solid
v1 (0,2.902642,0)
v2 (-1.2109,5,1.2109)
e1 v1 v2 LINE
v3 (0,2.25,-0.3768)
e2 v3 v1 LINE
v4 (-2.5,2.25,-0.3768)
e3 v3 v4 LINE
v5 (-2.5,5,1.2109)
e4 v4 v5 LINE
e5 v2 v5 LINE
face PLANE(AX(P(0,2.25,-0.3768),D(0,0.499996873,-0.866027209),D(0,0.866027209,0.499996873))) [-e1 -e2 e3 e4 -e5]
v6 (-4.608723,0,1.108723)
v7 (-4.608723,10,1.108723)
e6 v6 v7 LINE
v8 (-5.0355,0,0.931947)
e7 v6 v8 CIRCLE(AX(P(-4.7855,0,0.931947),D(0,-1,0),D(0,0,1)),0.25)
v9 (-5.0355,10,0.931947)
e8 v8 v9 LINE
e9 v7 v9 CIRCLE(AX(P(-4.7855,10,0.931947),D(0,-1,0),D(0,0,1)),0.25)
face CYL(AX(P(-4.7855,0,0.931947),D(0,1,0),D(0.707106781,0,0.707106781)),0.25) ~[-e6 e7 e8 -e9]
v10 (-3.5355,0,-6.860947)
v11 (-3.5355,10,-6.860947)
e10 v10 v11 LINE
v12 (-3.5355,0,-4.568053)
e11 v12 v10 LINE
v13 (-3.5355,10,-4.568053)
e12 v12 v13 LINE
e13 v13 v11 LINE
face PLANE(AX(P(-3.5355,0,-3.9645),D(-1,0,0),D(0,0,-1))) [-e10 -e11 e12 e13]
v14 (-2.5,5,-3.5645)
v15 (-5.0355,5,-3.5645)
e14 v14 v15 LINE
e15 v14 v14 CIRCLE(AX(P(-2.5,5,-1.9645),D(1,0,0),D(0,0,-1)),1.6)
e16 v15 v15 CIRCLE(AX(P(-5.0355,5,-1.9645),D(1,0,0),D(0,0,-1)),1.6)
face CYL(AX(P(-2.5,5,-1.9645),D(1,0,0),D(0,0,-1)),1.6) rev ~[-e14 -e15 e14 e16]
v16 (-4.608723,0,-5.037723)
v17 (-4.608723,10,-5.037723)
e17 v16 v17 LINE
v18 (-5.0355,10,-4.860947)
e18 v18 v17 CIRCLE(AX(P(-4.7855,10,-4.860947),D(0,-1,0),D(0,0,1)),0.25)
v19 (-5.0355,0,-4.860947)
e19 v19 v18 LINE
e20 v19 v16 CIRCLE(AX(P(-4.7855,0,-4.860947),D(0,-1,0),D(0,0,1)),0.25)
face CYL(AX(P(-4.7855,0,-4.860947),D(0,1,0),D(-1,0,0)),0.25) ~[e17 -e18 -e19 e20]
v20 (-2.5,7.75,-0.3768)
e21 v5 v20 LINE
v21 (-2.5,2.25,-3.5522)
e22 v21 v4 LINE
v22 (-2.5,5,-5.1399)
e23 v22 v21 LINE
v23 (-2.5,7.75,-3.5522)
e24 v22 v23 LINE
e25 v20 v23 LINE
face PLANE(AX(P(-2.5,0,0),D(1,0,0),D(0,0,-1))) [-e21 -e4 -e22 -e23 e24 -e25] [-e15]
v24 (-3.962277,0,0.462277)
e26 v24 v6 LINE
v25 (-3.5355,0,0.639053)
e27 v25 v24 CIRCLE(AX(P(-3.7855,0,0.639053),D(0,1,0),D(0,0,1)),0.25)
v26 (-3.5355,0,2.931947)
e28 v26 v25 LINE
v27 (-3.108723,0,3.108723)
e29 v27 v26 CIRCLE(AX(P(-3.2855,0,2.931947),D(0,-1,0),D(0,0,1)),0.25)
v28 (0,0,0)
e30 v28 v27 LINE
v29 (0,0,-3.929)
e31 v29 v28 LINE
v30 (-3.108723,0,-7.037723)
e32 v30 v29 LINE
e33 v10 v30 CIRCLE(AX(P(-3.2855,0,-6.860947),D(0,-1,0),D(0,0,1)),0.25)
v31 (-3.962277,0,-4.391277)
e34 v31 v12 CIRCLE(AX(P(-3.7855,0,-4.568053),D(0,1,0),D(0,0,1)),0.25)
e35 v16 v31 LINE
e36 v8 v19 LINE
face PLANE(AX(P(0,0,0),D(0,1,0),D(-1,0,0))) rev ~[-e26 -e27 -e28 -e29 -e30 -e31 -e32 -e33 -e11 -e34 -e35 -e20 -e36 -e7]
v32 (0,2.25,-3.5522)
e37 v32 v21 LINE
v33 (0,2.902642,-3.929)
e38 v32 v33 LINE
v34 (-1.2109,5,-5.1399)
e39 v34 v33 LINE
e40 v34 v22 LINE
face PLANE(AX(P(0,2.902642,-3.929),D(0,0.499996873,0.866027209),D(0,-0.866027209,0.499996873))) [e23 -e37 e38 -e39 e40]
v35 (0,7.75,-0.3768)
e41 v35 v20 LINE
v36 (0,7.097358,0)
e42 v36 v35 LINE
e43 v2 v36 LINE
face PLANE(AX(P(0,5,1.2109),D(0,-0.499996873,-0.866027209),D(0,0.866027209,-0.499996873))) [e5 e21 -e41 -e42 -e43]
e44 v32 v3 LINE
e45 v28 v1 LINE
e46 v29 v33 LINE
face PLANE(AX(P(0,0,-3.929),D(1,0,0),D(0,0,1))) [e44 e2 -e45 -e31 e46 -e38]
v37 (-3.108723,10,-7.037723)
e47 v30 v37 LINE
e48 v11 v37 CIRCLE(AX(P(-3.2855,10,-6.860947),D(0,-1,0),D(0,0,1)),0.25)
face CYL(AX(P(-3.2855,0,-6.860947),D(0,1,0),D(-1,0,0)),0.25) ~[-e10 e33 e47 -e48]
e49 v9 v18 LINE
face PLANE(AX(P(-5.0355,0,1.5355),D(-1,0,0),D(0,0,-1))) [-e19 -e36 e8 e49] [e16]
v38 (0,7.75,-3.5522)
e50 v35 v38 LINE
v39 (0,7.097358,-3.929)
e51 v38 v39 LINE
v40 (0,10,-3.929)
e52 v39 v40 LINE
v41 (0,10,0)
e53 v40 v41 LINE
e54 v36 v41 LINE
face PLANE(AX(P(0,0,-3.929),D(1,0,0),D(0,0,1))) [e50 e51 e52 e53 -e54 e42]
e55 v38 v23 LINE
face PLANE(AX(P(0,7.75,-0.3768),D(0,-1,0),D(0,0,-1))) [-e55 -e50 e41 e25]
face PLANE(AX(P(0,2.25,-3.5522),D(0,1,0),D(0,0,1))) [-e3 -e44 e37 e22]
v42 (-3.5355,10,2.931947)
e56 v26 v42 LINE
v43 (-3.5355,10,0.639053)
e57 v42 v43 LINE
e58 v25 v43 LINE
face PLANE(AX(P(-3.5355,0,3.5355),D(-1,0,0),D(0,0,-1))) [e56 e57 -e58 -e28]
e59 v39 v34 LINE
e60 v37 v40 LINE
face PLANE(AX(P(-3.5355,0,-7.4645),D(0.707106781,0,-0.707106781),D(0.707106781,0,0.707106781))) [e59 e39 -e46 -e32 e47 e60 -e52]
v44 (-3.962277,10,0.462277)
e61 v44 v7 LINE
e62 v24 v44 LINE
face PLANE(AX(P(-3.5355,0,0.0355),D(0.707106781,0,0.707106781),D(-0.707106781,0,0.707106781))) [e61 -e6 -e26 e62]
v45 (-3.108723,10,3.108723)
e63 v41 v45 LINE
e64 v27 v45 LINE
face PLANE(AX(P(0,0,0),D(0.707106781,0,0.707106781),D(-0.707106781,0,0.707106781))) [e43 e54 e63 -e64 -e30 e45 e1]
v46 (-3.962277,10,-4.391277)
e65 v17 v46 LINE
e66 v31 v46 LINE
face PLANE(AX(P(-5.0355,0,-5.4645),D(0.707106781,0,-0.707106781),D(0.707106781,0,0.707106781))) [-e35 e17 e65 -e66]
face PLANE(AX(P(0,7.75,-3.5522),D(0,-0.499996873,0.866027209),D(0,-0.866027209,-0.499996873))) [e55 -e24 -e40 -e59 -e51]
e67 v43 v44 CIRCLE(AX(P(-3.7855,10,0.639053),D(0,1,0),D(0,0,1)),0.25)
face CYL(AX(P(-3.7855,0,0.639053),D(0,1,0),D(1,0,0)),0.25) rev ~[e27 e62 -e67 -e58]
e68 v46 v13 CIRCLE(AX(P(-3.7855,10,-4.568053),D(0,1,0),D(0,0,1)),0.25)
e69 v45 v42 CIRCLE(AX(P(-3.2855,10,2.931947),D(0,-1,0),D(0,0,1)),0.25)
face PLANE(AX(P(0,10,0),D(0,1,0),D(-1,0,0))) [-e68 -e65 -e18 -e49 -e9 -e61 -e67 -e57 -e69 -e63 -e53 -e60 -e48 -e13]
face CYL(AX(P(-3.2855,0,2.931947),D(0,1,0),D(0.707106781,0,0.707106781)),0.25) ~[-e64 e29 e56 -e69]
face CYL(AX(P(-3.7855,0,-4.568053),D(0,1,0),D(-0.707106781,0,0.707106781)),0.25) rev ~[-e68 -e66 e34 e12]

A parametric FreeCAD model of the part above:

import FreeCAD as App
import Part
import Sketcher

V = App.Vector
Q = App.Units.Quantity


def edges_at(feature, points):
    """Names of the edges that pass closest to the given points."""
    edges = feature.Shape.Edges
    near = lambda p: min(range(len(edges)), key=lambda i: edges[i].distToShape(Part.Vertex(*p))[0])
    return sorted({f"Edge{near(p) + 1}" for p in points})

doc = App.newDocument("Part")
body = doc.addObject("PartDesign::Body", "Body")

# Sketch on XZ plane
sketch1 = body.newObject("Sketcher::SketchObject", "Sketch")
sketch1.AttachmentSupport = (doc.getObject("XZ_Plane"), [""])
sketch1.MapMode = "FlatFace"
sketch1.addGeometry([
    Part.LineSegment(V(-3.5355, 3.5355, 0), V(0, 0, 0)),  # 0
    Part.LineSegment(V(0, 0, 0), V(0, -3.929, 0)),  # 1
    Part.LineSegment(V(0, -3.929, 0), V(-3.5355, -7.4645, 0)),  # 2
    Part.LineSegment(V(-3.5355, -7.4645, 0), V(-3.5355, -3.9645, 0)),  # 3
    Part.LineSegment(V(-3.5355, -3.9645, 0), V(-5.0355, -5.4645, 0)),  # 4
    Part.LineSegment(V(-5.0355, -5.4645, 0), V(-5.0355, 1.5355, 0)),  # 5
    Part.LineSegment(V(-5.0355, 1.5355, 0), V(-3.5355, 0.0355, 0)),  # 6
    Part.LineSegment(V(-3.5355, 0.0355, 0), V(-3.5355, 3.5355, 0)),  # 7
], False)
sketch1.addConstraint([
    Sketcher.Constraint("Coincident", 0, 2, 1, 1),
    Sketcher.Constraint("Coincident", 1, 2, 2, 1),
    Sketcher.Constraint("Coincident", 2, 2, 3, 1),
    Sketcher.Constraint("Coincident", 3, 2, 4, 1),
    Sketcher.Constraint("Coincident", 4, 2, 5, 1),
    Sketcher.Constraint("Coincident", 5, 2, 6, 1),
    Sketcher.Constraint("Coincident", 6, 2, 7, 1),
    Sketcher.Constraint("Coincident", 7, 2, 0, 1),
    Sketcher.Constraint("Vertical", 1),
    Sketcher.Constraint("Vertical", 3),
    Sketcher.Constraint("Vertical", 5),
    Sketcher.Constraint("Vertical", 7),
    Sketcher.Constraint("Coincident", 0, 2, -1, 1),
    Sketcher.Constraint("Perpendicular", 0, 2),
    Sketcher.Constraint("Parallel", 2, 4),
    Sketcher.Constraint("Perpendicular", 4, 6),
    Sketcher.Constraint("Vertical", 3, 2, 6, 2),
    Sketcher.Constraint("Equal", 3, 7),
    Sketcher.Constraint("Equal", 0, 2),
    Sketcher.Constraint("Distance", 0, 5.0),
    Sketcher.Constraint("DistanceY", 3, 1, 3, 2, 3.5),
    Sketcher.Constraint("DistanceX", 4, 2, 3, 2, 1.5),
    Sketcher.Constraint("DistanceY", 1, 2, 1, 1, 3.929),
])
pad1 = body.newObject("PartDesign::Pad", "Pad")
pad1.Profile = sketch1
pad1.Length = 10
pad1.Reversed = True
doc.recompute()

fillet = body.newObject("PartDesign::Fillet", "Fillet")
fillet.Base = (pad1, edges_at(pad1, [
    (-3.535, 5, -3.965),
    (-3.535, 5, -7.465),
    (-5.035, 5, -5.465),
    (-3.535, 5, 3.535),
    (-3.535, 5, 0.035),
    (-5.035, 5, 1.536),
]))
fillet.Radius = 0.25

# Sketch on YZ plane
sketch2 = body.newObject("Sketcher::SketchObject", "Sketch001")
sketch2.AttachmentSupport = (doc.getObject("YZ_Plane"), [""])
sketch2.MapMode = "FlatFace"
sketch2.addGeometry([
    Part.LineSegment(V(7.75, -3.5522, 0), V(7.75, -0.3768, 0)),  # 0
    Part.LineSegment(V(7.75, -0.3768, 0), V(5, 1.2109, 0)),  # 1
    Part.LineSegment(V(5, 1.2109, 0), V(2.25, -0.3768, 0)),  # 2
    Part.LineSegment(V(2.25, -0.3768, 0), V(2.25, -3.5522, 0)),  # 3
    Part.LineSegment(V(2.25, -3.5522, 0), V(5, -5.1399, 0)),  # 4
    Part.LineSegment(V(5, -5.1399, 0), V(7.75, -3.5522, 0)),  # 5
], False)
sketch2.addConstraint([
    Sketcher.Constraint("Coincident", 0, 2, 1, 1),
    Sketcher.Constraint("Coincident", 1, 2, 2, 1),
    Sketcher.Constraint("Coincident", 2, 2, 3, 1),
    Sketcher.Constraint("Coincident", 3, 2, 4, 1),
    Sketcher.Constraint("Coincident", 4, 2, 5, 1),
    Sketcher.Constraint("Coincident", 5, 2, 0, 1),
    Sketcher.Constraint("Vertical", 0),
    Sketcher.Constraint("Vertical", 3),
    Sketcher.Constraint("Parallel", 1, 4),
    Sketcher.Constraint("Parallel", 2, 5),
    Sketcher.Constraint("Horizontal", 0, 2, 2, 2),
    Sketcher.Constraint("Horizontal", 3, 2, 5, 2),
    Sketcher.Constraint("Vertical", 1, 2, 4, 2),
    Sketcher.Constraint("DistanceX", -1, 1, 1, 2, 5.0),
    Sketcher.Constraint("DistanceX", 2, 2, 0, 2, 5.5),
    Sketcher.Constraint("Angle", 1, Q("150.0002 deg")),
    Sketcher.Constraint("DistanceY", 4, 2, -1, 1, 5.14),
    Sketcher.Constraint("DistanceY", 0, 1, 0, 2, 3.1754),
])
pocket1 = body.newObject("PartDesign::Pocket", "Pocket")
pocket1.Profile = sketch2
pocket1.Length = 2.5

# Sketch on YZ plane
sketch3 = body.newObject("Sketcher::SketchObject", "Sketch002")
sketch3.AttachmentSupport = (doc.getObject("YZ_Plane"), [""])
sketch3.MapMode = "FlatFace"
sketch3.AttachmentOffset = App.Placement(V(0, 0, -2.5), App.Rotation())
sketch3.addGeometry(Part.Circle(V(5, -1.9645, 0), V(0, 0, 1), 1.6), False)
sketch3.addConstraint([
    Sketcher.Constraint("Diameter", 0, 3.2),
    Sketcher.Constraint("DistanceX", -1, 1, 0, 3, 5.0),
    Sketcher.Constraint("DistanceY", 0, 3, -1, 1, 1.9645),
])
pocket2 = body.newObject("PartDesign::Pocket", "Pocket001")
pocket2.Profile = sketch3
pocket2.Type = "ThroughAll"

doc.recompute()
